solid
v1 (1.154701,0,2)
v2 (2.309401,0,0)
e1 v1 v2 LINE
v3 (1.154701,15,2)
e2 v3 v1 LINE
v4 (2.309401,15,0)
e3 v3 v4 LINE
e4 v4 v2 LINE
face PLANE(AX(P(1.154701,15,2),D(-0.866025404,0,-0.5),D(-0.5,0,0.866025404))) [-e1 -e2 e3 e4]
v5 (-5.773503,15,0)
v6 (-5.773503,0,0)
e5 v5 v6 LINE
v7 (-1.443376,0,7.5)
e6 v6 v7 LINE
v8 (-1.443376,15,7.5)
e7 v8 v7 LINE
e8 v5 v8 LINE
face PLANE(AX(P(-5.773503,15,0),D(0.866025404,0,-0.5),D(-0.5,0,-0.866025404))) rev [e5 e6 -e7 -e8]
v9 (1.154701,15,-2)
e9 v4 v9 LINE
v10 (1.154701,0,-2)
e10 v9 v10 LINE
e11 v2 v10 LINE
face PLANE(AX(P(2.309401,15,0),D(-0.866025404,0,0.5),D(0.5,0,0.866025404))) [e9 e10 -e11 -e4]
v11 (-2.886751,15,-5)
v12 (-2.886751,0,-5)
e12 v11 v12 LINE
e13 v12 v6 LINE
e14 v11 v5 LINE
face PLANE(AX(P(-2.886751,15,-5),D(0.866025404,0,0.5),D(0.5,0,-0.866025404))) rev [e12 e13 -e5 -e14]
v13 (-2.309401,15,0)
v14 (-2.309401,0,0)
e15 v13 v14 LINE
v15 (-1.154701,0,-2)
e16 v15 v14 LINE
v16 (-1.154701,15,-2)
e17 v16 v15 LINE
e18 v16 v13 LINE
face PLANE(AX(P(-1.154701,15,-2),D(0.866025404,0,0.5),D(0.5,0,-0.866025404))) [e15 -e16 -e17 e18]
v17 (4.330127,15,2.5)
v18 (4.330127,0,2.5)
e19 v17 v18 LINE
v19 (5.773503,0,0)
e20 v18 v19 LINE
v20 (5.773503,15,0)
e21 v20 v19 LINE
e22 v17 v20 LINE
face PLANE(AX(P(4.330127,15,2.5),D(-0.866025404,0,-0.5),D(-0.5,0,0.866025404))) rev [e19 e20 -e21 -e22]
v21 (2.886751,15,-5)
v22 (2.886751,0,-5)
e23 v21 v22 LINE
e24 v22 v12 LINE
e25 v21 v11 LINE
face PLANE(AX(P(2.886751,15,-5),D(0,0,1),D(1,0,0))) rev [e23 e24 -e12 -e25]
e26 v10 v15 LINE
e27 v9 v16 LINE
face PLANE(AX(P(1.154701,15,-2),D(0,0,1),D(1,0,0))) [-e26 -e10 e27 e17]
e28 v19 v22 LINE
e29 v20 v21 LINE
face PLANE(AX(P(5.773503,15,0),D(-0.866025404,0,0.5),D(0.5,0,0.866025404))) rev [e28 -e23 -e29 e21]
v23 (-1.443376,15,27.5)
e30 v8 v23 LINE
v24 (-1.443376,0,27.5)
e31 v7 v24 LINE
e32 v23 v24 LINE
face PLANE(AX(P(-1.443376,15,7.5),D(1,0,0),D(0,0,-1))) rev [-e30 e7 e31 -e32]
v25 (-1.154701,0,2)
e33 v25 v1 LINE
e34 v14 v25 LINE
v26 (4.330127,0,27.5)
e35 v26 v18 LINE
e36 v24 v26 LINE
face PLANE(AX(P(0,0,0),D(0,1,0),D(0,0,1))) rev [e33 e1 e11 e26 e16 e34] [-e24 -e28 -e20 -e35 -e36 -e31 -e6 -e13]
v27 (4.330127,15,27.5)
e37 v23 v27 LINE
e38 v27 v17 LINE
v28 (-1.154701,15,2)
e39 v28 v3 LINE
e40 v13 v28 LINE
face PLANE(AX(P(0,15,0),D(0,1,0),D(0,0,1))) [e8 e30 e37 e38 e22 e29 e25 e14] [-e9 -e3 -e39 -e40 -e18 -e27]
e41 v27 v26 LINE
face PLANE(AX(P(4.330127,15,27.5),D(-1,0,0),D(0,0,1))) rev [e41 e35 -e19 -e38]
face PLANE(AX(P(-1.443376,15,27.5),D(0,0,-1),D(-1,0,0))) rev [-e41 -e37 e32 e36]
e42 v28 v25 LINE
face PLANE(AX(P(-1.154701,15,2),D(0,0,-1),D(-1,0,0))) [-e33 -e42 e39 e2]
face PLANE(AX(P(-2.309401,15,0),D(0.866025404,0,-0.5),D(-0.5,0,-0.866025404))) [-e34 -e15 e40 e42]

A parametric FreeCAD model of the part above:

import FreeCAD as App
import Part
import Sketcher

V = App.Vector
Q = App.Units.Quantity


def add_polygon(sketch, points):
    """Adds a closed chain of lines whose ends are joined by coincident constraints."""
    first, n = sketch.GeometryCount, len(points)
    for a, b in zip(points, points[1:] + points[:1]):
        sketch.addGeometry(Part.LineSegment(App.Vector(*a, 0), App.Vector(*b, 0)), False)
    for i in range(n):
        sketch.addConstraint(Sketcher.Constraint("Coincident", first + i, 2, first + (i + 1) % n, 1))

doc = App.newDocument("Part")
params = doc.addObject("Spreadsheet::Sheet", "Params")
for row, (alias, value) in enumerate([
    ("sketch1_height", "20 mm"),
    ("sketch1_height2", "25 mm"),
    ("pad1_length", "15 mm"),
], start=1):
    params.set(f"A{row}", alias)
    params.set(f"B{row}", "=" + value)
    params.setAlias(f"B{row}", alias)

body = doc.addObject("PartDesign::Body", "Body")

# Sketch on XZ plane
sketch1 = doc.addObject("Sketcher::SketchObject", "Sketch")
body.addObject(sketch1)
sketch1.AttachmentSupport = (doc.XZ_Plane, [""])
sketch1.MapMode = "FlatFace"
add_polygon(sketch1, [(-1.4, 7.5), (-1.4, 27.5), (4.3, 27.5), (4.3, 2.5), (5.8, 0), (2.9, -5), (-2.9, -5), (-5.8, 0)])  # lines 0-7
add_polygon(sketch1, [(1.2, -2), (2.3, 0), (1.2, 2), (-1.2, 2), (-2.3, 0), (-1.2, -2)])  # lines 8-13
sketch1.addConstraint(Sketcher.Constraint("Vertical", 0))
sketch1.addConstraint(Sketcher.Constraint("Horizontal", 1))
sketch1.addConstraint(Sketcher.Constraint("Vertical", 2))
sketch1.addConstraint(Sketcher.Constraint("Horizontal", 5))
sketch1.addConstraint(Sketcher.Constraint("Horizontal", 10))
sketch1.addConstraint(Sketcher.Constraint("Horizontal", 13))
sketch1.addConstraint(Sketcher.Constraint("Symmetric", 3, 2, 6, 2, -1, 1))
sketch1.addConstraint(Sketcher.Constraint("Symmetric", 8, 2, 11, 2, -1, 1))
sketch1.addConstraint(Sketcher.Constraint("Symmetric", 9, 2, 12, 2, -1, 1))
sketch1.addConstraint(Sketcher.Constraint("PointOnObject", 3, 2, -1))
sketch1.addConstraint(Sketcher.Constraint("PointOnObject", 8, 2, -1))
sketch1.addConstraint(Sketcher.Constraint("Parallel", 3, 6))
sketch1.addConstraint(Sketcher.Constraint("Parallel", 4, 7))
sketch1.addConstraint(Sketcher.Constraint("Parallel", 7, 8))
sketch1.addConstraint(Sketcher.Constraint("Parallel", 6, 9))
sketch1.addConstraint(Sketcher.Constraint("Parallel", 8, 11))
sketch1.addConstraint(Sketcher.Constraint("Vertical", 10, 2, 12, 2))
sketch1.addConstraint(Sketcher.Constraint("Equal", 1, 5))
sketch1.addConstraint(Sketcher.Constraint("DistanceY", 0, 1, 0, 2, Q("20 mm")))
sketch1.addConstraint(Sketcher.Constraint("DistanceY", 2, 2, 2, 1, Q("25 mm")))
sketch1.addConstraint(Sketcher.Constraint("Angle", 3, Q("-60 deg")))
sketch1.addConstraint(Sketcher.Constraint("DistanceY", 4, 2, -1, 1, Q("5 mm")))
sketch1.addConstraint(Sketcher.Constraint("DistanceY", -1, 1, 9, 2, Q("2 mm")))
sketch1.addConstraint(Sketcher.Constraint("DistanceX", 10, 2, 10, 1, Q("2.309401 mm")))
sketch1.addConstraint(Sketcher.Constraint("DistanceX", 8, 2, 3, 2, Q("3.464102 mm")))
sketch1.setExpression("Constraints[32]", "Params.sketch1_height")
sketch1.setExpression("Constraints[33]", "Params.sketch1_height2")
pad1 = doc.addObject("PartDesign::Pad", "Pad")
body.addObject(pad1)
pad1.Profile = sketch1
pad1.setExpression("Length", "Params.pad1_length")
pad1.Reversed = True

doc.recompute()
